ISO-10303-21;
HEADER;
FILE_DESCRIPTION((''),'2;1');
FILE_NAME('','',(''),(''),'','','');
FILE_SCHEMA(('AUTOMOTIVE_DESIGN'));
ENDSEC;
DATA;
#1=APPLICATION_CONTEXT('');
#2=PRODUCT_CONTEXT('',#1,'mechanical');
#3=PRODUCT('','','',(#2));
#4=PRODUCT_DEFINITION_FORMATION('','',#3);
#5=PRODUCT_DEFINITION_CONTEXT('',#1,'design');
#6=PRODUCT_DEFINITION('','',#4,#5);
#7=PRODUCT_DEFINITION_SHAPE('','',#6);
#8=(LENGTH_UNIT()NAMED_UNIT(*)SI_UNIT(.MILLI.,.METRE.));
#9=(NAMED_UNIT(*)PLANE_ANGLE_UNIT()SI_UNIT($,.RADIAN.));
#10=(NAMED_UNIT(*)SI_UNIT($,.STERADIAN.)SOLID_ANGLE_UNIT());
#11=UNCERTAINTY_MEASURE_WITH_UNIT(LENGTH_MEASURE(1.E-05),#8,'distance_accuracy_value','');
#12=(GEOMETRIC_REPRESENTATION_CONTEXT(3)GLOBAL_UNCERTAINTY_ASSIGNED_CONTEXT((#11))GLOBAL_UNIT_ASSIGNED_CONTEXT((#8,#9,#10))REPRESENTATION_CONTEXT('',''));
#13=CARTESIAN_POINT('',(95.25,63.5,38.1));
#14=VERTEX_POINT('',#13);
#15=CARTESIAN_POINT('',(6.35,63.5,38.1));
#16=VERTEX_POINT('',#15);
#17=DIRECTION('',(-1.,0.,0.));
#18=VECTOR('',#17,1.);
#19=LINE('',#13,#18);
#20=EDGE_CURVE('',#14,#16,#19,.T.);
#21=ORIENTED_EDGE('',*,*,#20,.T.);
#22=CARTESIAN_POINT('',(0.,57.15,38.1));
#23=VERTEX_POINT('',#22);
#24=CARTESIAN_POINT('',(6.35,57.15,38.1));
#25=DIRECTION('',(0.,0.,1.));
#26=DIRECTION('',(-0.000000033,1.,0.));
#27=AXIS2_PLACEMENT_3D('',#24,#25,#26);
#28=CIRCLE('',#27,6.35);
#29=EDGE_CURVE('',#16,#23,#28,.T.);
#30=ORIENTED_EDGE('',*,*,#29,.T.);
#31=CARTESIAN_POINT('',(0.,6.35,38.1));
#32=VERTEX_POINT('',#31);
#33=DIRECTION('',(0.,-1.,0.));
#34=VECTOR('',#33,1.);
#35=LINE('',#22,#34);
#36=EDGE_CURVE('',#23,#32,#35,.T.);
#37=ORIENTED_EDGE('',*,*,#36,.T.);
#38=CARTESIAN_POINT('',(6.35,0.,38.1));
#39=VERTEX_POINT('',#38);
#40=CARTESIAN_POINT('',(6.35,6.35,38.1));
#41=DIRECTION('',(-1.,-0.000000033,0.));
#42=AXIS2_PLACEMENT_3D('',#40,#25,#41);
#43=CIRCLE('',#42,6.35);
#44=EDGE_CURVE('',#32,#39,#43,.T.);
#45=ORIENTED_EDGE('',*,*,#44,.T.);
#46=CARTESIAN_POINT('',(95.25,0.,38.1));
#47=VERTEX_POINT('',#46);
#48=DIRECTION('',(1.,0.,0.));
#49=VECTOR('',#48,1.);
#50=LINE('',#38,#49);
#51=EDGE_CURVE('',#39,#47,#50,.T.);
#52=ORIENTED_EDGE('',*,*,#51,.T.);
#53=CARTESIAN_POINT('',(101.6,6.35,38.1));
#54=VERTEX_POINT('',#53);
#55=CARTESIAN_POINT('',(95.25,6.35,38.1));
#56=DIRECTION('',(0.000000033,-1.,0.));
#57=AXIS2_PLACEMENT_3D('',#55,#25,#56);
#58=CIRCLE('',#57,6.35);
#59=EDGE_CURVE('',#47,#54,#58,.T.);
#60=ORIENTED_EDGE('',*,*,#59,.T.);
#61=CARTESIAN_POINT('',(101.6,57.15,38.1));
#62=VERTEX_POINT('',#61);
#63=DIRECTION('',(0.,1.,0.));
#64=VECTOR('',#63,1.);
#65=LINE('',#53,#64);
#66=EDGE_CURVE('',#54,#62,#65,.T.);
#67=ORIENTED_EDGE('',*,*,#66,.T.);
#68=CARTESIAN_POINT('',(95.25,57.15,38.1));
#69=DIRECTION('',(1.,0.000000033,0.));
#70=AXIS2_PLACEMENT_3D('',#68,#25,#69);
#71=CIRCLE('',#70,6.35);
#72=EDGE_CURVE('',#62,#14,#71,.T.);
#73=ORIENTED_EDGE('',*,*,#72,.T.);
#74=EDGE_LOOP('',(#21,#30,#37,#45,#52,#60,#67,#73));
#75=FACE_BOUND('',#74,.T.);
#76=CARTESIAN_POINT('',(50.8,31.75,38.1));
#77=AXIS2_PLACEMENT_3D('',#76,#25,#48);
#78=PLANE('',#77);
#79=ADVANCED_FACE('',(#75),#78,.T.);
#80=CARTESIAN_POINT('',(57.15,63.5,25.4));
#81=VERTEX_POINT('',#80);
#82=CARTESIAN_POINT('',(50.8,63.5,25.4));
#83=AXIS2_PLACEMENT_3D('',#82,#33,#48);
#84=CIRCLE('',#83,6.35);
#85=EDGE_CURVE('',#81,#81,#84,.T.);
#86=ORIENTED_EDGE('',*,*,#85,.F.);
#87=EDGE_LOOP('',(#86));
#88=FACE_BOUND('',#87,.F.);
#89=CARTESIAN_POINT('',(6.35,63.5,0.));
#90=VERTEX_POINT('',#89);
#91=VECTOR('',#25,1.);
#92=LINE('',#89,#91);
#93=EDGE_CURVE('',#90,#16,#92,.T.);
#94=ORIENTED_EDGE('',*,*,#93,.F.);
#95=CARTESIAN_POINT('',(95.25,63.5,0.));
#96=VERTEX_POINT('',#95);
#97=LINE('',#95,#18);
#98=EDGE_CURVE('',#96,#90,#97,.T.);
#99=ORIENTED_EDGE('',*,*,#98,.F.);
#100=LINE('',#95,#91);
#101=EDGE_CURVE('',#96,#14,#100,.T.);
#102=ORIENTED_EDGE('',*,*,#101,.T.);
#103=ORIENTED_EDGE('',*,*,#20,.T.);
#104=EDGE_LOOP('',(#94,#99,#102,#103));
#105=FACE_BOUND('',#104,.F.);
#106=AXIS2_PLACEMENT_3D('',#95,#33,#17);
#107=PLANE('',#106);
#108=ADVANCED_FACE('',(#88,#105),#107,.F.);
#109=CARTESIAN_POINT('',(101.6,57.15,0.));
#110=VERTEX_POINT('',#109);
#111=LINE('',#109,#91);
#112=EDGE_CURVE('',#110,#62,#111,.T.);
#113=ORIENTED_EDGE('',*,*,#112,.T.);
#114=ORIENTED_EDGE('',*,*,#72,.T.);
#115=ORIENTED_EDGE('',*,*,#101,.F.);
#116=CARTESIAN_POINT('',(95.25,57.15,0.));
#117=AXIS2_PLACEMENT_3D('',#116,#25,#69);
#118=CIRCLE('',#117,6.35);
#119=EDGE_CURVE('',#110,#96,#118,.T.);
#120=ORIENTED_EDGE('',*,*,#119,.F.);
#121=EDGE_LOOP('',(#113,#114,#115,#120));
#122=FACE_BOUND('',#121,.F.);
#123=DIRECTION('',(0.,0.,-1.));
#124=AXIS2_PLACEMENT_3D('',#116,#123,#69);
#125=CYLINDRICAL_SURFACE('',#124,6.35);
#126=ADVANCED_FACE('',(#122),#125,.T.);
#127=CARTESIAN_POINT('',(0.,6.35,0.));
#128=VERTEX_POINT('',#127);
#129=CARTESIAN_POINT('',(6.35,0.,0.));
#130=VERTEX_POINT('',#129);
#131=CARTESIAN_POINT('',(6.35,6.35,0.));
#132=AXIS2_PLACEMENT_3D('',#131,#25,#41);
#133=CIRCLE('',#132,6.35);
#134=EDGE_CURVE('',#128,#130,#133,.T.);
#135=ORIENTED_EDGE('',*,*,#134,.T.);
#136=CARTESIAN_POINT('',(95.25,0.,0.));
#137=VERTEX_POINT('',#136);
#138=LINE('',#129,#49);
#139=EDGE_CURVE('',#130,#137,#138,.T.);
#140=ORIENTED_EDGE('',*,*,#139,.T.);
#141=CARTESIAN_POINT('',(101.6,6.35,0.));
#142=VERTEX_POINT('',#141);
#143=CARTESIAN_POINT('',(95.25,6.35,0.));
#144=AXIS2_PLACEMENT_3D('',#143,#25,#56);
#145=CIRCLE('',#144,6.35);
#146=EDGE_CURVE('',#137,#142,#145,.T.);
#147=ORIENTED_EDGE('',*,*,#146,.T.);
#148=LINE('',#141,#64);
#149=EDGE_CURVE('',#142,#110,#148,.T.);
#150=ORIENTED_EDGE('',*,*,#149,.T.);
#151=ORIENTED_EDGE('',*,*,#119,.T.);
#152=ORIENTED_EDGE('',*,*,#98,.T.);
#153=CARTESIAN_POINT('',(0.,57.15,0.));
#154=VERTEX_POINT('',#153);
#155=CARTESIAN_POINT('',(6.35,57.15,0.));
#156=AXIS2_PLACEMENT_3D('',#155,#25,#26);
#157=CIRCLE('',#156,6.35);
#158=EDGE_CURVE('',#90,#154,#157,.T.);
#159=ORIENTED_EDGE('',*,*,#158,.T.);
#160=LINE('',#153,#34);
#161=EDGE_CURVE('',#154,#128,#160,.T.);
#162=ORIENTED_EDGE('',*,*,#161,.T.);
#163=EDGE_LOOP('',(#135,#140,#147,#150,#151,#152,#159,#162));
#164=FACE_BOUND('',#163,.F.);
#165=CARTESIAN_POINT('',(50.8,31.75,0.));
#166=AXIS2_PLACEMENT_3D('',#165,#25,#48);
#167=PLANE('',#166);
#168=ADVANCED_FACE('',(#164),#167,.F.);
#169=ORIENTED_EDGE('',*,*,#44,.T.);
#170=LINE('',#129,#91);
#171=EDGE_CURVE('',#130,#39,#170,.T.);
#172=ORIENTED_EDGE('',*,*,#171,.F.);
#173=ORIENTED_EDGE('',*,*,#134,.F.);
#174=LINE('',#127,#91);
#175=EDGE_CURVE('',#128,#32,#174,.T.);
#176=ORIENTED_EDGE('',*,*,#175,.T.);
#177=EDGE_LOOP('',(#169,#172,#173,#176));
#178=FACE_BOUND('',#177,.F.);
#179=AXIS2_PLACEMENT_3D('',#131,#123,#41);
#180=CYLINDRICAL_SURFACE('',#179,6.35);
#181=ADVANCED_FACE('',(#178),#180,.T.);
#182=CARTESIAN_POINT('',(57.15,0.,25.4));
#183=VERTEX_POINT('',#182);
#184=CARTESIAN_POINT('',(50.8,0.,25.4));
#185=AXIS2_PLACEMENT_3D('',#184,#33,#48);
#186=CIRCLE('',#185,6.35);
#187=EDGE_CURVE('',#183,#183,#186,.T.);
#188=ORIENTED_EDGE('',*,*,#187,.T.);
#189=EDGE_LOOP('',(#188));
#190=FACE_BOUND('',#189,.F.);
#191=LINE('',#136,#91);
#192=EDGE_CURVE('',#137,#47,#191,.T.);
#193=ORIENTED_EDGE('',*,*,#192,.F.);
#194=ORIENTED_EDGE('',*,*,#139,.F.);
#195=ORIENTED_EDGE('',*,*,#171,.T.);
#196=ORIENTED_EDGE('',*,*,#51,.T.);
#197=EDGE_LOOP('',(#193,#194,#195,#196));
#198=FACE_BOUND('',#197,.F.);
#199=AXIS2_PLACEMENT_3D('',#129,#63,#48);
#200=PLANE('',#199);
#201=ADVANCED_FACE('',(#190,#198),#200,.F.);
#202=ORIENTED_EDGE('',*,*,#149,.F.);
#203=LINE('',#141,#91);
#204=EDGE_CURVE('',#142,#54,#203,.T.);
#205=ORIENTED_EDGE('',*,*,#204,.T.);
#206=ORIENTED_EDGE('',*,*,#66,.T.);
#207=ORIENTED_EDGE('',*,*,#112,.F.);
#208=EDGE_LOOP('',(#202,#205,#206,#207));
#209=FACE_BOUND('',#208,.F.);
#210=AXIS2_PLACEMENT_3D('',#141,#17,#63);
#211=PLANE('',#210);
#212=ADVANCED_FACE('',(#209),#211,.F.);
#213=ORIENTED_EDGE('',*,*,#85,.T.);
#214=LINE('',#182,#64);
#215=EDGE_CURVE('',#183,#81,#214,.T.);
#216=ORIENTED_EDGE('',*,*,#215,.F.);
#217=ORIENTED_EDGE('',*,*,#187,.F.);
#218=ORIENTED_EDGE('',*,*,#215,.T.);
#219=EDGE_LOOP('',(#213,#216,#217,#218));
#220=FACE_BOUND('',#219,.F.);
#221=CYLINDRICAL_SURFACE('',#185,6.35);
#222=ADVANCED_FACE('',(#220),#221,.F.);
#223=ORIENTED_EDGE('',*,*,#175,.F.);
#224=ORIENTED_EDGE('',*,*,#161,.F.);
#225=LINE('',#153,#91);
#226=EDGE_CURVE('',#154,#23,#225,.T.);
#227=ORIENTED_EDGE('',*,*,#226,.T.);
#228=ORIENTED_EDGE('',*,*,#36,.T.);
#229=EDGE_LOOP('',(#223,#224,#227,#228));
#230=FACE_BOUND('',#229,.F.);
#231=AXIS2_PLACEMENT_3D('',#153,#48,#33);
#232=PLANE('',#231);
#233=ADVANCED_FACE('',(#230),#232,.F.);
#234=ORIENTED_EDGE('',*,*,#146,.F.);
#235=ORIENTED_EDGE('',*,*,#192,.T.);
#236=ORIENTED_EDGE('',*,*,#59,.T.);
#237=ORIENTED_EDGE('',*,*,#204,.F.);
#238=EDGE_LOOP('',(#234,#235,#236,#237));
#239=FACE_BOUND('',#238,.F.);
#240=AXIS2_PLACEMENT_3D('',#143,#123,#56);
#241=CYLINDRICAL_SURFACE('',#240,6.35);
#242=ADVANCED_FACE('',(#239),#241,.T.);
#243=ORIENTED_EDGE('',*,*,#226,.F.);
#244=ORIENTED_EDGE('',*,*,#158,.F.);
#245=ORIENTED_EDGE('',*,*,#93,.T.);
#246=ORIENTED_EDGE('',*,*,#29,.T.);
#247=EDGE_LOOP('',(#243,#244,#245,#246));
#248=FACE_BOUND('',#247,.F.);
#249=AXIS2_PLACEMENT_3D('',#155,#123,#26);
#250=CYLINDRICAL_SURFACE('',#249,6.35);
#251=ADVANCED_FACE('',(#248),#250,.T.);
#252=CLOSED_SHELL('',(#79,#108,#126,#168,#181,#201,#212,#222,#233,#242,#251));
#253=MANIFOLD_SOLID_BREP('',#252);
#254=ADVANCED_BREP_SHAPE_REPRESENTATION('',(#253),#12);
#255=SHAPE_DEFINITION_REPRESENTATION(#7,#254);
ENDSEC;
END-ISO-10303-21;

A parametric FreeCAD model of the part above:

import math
import FreeCAD as App
import Part
import Sketcher
Q = App.Units.Quantity

doc = App.newDocument("Part")
body = doc.addObject("PartDesign::Body", "Body")

sketch1 = doc.addObject("Sketcher::SketchObject", "Sketch")
body.addObject(sketch1)
sketch1.AttachmentSupport = (doc.XY_Plane, [""])
sketch1.MapMode = "FlatFace"
sketch1.addGeometry([
    Part.ArcOfCircle(Part.Circle(App.Vector(6.35, 6.35, 0), App.Vector(0, 0, 1), 6.35), math.radians(-179.999998), math.radians(-90.000002)),
    Part.LineSegment(App.Vector(6.35, 0, 0), App.Vector(95.25, 0, 0)),
    Part.ArcOfCircle(Part.Circle(App.Vector(95.25, 6.35, 0), App.Vector(0, 0, 1), 6.35), math.radians(-89.999998), math.radians(-0.000002)),
    Part.LineSegment(App.Vector(101.6, 6.35, 0), App.Vector(101.6, 57.15, 0)),
    Part.ArcOfCircle(Part.Circle(App.Vector(95.25, 57.15, 0), App.Vector(0, 0, 1), 6.35), math.radians(0.000002), math.radians(89.999998)),
    Part.LineSegment(App.Vector(95.25, 63.5, 0), App.Vector(6.35, 63.5, 0)),
    Part.ArcOfCircle(Part.Circle(App.Vector(6.35, 57.15, 0), App.Vector(0, 0, 1), 6.35), math.radians(90.000002), math.radians(179.999998)),
    Part.LineSegment(App.Vector(0, 57.15, 0), App.Vector(0, 6.35, 0)),
], False)
sketch1.addConstraint([
    Sketcher.Constraint("Tangent", 0, 2, 1, 1),
    Sketcher.Constraint("Tangent", 1, 2, 2, 1),
    Sketcher.Constraint("Tangent", 2, 2, 3, 1),
    Sketcher.Constraint("Tangent", 3, 2, 4, 1),
    Sketcher.Constraint("Tangent", 4, 2, 5, 1),
    Sketcher.Constraint("Tangent", 5, 2, 6, 1),
    Sketcher.Constraint("Tangent", 6, 2, 7, 1),
    Sketcher.Constraint("Tangent", 7, 2, 0, 1),
    Sketcher.Constraint("Horizontal", 1),
    Sketcher.Constraint("Vertical", 3),
    Sketcher.Constraint("Horizontal", 5),
    Sketcher.Constraint("Vertical", 7),
    Sketcher.Constraint("Equal", 0, 2),
    Sketcher.Constraint("Equal", 2, 4),
    Sketcher.Constraint("Equal", 4, 6),
    Sketcher.Constraint("PointOnObject", 0, 2, -1),
    Sketcher.Constraint("PointOnObject", 6, 2, -2),
    Sketcher.Constraint("DistanceY", 3, 1, 3, 2, Q("2 in")),
    Sketcher.Constraint("Radius", 0, Q("0.25 in")),
    Sketcher.Constraint("DistanceX", 1, 1, 1, 2, Q("3.5 in")),
])
pad1 = doc.addObject("PartDesign::Pad", "Pad")
body.addObject(pad1)
pad1.Profile = sketch1
pad1.Length = Q("1.5 in")

sketch2 = doc.addObject("Sketcher::SketchObject", "Sketch001")
body.addObject(sketch2)
sketch2.AttachmentSupport = (doc.XZ_Plane, [""])
sketch2.MapMode = "FlatFace"
sketch2.addGeometry(Part.Circle(App.Vector(50.8, 25.4, 0), App.Vector(0, 0, 1), 6.35), False)
sketch2.addConstraint([
    Sketcher.Constraint("Diameter", 0, Q("0.5 in")),
    Sketcher.Constraint("DistanceX", -1, 1, 0, 3, Q("2 in")),
    Sketcher.Constraint("DistanceY", -1, 1, 0, 3, Q("1 in")),
])
pocket1 = doc.addObject("PartDesign::Pocket", "Pocket")
body.addObject(pocket1)
pocket1.Profile = sketch2
pocket1.Type = "ThroughAll"

doc.recompute()
